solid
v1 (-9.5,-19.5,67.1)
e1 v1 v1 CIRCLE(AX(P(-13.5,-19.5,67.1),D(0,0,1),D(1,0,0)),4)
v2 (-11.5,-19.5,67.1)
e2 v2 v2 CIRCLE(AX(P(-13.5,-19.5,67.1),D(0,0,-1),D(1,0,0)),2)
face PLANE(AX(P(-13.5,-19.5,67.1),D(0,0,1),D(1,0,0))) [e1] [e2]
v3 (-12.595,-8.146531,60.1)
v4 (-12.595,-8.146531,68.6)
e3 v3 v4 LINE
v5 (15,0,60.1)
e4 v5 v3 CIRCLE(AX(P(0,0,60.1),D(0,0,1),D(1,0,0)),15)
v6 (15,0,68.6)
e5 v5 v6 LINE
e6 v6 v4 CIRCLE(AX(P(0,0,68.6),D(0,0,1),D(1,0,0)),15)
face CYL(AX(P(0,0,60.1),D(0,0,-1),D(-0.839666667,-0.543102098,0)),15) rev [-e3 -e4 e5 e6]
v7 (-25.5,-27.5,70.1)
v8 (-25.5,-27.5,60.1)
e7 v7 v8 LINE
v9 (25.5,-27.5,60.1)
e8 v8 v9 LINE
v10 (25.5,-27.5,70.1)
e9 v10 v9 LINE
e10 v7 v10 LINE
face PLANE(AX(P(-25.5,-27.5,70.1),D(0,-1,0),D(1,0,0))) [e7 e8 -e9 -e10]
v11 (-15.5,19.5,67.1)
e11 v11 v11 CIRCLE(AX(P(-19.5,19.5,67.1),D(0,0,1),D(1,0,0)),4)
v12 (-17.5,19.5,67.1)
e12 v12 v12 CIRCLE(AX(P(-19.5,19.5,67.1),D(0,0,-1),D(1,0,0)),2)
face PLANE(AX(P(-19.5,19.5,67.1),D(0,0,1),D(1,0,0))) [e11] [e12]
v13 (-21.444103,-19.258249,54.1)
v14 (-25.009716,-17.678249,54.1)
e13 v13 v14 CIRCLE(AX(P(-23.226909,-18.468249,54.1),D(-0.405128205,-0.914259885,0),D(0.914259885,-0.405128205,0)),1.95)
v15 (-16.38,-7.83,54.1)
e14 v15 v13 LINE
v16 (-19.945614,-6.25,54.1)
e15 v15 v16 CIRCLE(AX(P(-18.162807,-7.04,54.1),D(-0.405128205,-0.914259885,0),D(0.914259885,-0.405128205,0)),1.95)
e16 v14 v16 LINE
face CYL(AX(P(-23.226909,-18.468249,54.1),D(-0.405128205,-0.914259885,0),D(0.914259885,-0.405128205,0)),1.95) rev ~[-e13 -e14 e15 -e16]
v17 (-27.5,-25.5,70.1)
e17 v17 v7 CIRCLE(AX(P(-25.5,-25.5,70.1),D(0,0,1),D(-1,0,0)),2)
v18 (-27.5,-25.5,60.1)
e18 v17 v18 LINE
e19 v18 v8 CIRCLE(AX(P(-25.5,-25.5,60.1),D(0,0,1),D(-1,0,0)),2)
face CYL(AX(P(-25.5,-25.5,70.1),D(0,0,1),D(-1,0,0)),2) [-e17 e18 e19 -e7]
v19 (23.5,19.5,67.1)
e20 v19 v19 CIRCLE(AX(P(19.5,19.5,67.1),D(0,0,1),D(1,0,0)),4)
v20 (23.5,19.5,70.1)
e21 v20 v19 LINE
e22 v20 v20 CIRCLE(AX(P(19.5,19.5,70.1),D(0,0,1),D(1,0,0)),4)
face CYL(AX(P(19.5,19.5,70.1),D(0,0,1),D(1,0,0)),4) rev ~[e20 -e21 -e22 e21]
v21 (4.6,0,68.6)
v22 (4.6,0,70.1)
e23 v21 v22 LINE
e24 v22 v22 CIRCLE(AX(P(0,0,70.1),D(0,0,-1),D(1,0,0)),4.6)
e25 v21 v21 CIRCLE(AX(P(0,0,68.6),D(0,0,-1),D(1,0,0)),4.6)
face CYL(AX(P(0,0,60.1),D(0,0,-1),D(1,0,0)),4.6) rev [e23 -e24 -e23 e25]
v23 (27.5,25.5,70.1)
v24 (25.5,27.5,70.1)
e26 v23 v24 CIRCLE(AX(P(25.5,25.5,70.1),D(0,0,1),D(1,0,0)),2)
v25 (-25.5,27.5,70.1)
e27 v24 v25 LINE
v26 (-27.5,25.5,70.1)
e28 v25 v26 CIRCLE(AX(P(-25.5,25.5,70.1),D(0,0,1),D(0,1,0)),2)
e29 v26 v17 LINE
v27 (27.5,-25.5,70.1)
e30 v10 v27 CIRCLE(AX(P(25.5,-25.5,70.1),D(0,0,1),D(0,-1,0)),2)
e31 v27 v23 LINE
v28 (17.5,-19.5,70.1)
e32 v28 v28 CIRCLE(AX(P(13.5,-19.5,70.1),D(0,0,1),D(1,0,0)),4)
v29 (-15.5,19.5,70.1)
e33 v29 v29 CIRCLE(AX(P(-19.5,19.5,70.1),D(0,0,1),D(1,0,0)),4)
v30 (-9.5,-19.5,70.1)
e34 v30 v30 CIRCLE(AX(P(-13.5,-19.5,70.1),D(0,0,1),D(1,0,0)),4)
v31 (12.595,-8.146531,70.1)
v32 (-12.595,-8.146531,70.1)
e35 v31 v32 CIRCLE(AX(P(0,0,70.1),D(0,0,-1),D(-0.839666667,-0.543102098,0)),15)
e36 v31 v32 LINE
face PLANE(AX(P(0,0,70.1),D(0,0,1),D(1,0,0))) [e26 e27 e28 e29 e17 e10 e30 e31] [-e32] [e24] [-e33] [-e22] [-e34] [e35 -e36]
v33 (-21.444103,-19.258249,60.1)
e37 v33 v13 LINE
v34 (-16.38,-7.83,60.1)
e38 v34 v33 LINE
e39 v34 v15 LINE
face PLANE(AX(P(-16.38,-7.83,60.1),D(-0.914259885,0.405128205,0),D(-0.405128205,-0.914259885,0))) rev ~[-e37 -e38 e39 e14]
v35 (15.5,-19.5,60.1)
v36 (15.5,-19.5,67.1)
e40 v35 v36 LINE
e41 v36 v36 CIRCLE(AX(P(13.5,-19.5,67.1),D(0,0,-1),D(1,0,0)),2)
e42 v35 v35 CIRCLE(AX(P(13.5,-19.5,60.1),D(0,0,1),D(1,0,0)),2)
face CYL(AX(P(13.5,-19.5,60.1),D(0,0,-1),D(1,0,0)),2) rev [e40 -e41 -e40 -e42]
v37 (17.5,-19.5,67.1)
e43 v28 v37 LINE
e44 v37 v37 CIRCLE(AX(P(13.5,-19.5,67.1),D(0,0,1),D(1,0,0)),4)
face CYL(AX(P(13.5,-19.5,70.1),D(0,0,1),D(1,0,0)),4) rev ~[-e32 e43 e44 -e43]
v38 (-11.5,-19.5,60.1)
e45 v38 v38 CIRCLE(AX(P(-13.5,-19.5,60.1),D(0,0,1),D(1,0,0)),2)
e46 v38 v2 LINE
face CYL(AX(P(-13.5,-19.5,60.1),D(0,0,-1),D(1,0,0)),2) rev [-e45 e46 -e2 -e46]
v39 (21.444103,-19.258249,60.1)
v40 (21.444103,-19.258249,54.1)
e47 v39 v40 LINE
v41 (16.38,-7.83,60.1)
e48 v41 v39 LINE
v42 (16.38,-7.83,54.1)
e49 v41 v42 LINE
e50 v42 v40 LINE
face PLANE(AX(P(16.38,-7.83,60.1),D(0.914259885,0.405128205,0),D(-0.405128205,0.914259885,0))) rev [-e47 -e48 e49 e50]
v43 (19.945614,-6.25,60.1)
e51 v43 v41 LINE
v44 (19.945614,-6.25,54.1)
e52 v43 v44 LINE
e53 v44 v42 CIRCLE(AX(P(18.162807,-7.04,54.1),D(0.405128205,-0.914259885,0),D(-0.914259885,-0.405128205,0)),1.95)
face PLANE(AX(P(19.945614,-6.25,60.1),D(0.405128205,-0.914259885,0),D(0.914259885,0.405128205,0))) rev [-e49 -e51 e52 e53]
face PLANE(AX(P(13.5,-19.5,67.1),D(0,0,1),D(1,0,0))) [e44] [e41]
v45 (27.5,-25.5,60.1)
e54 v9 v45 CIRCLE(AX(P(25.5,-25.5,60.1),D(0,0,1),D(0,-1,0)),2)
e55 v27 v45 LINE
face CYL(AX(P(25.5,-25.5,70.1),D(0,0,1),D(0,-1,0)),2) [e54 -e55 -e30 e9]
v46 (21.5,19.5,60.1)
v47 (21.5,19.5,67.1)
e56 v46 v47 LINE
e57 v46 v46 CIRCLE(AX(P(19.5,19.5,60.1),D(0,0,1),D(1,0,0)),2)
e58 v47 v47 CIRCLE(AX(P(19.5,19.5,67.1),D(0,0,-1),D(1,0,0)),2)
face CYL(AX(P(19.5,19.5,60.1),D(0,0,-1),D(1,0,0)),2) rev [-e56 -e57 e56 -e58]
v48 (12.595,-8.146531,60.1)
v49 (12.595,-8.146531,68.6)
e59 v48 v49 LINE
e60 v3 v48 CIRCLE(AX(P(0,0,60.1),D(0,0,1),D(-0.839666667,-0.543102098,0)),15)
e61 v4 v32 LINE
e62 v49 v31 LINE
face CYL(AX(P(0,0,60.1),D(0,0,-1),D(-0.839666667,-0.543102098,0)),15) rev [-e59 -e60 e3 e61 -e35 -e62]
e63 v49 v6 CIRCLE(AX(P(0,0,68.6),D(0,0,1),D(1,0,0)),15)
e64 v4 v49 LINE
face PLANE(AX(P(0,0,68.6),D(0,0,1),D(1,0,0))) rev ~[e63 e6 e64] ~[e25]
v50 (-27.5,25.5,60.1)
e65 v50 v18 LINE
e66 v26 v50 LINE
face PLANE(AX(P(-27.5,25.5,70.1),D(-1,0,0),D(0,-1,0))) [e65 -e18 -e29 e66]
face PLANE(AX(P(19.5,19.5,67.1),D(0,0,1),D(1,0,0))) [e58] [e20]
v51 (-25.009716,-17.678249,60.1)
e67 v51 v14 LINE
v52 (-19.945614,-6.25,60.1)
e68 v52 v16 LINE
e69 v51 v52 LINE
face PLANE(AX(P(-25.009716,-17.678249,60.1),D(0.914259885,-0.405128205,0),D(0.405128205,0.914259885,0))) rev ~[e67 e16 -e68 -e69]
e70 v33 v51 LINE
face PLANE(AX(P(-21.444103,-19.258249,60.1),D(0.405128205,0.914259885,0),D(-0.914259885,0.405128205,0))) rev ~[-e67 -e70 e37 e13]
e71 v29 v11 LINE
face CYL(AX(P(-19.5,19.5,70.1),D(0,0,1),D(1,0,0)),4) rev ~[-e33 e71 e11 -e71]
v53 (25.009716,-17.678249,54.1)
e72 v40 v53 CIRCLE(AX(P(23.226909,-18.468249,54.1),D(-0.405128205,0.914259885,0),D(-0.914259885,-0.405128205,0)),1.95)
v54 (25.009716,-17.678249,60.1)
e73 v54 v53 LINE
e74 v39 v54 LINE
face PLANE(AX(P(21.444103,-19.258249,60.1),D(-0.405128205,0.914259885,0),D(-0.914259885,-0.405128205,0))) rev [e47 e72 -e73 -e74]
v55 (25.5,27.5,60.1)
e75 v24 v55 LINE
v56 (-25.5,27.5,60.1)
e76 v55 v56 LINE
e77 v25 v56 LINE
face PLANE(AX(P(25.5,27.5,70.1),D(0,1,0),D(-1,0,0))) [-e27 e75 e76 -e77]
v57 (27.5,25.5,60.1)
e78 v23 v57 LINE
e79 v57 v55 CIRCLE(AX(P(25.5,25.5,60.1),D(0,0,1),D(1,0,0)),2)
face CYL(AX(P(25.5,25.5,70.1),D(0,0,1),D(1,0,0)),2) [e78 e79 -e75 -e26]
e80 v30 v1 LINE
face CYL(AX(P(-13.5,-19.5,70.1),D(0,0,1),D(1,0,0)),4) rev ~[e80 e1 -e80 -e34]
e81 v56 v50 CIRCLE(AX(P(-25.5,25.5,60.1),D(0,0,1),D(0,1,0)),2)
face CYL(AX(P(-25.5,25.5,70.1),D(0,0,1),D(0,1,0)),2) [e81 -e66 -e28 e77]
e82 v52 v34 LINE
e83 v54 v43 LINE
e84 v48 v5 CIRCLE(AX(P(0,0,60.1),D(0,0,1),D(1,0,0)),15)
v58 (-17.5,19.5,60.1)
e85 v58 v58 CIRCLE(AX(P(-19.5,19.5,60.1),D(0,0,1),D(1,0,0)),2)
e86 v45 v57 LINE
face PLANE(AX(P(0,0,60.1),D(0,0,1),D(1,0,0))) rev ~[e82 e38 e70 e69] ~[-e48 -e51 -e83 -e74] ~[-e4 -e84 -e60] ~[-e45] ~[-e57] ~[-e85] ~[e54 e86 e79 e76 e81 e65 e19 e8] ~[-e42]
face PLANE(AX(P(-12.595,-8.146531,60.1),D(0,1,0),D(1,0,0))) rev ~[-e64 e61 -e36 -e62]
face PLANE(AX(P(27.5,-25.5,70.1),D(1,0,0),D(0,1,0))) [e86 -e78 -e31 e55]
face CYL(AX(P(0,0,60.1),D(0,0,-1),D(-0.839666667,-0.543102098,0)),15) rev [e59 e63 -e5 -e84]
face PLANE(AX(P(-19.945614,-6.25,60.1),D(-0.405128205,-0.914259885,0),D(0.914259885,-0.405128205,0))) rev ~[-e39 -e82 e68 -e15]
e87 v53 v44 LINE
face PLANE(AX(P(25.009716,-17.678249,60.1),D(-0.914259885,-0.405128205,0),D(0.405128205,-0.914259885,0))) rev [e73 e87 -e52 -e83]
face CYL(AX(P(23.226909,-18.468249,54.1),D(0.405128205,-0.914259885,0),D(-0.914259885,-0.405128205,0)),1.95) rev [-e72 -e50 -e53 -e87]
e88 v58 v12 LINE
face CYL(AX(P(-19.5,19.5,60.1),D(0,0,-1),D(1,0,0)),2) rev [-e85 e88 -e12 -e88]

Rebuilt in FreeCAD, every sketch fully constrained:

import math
import FreeCAD as App
import Part
import Sketcher
from FreeCAD import Vector

doc = App.newDocument("Part")
body = doc.addObject("PartDesign::Body", "Body")

# Sketch on XY plane
sketch1 = body.newObject("Sketcher::SketchObject", "Sketch")
sketch1.AttachmentSupport = (doc.getObject("XY_Plane"), [""])
sketch1.MapMode = "FlatFace"
sketch1.AttachmentOffset = App.Placement(Vector(0, 0, 70.1), App.Rotation())
sketch1.addGeometry(Part.LineSegment(Vector(-27.5, 25.5, 0), Vector(-27.5, -25.5, 0)), False)
sketch1.addGeometry(Part.ArcOfCircle(Part.Circle(Vector(-25.5, -25.5, 0), Vector(0, 0, 1), 2), math.radians(180), math.radians(270)), False)
sketch1.addGeometry(Part.LineSegment(Vector(-25.5, -27.5, 0), Vector(25.5, -27.5, 0)), False)
sketch1.addGeometry(Part.ArcOfCircle(Part.Circle(Vector(25.5, -25.5, 0), Vector(0, 0, 1), 2), math.radians(-90), math.radians(0)), False)
sketch1.addGeometry(Part.LineSegment(Vector(27.5, -25.5, 0), Vector(27.5, 25.5, 0)), False)
sketch1.addGeometry(Part.ArcOfCircle(Part.Circle(Vector(25.5, 25.5, 0), Vector(0, 0, 1), 2), math.radians(0), math.radians(90)), False)
sketch1.addGeometry(Part.LineSegment(Vector(25.5, 27.5, 0), Vector(-25.5, 27.5, 0)), False)
sketch1.addGeometry(Part.ArcOfCircle(Part.Circle(Vector(-25.5, 25.5, 0), Vector(0, 0, 1), 2), math.radians(90), math.radians(180)), False)
sketch1.addConstraint(Sketcher.Constraint("Tangent", 0, 2, 1, 1))
sketch1.addConstraint(Sketcher.Constraint("Tangent", 1, 2, 2, 1))
sketch1.addConstraint(Sketcher.Constraint("Tangent", 2, 2, 3, 1))
sketch1.addConstraint(Sketcher.Constraint("Tangent", 3, 2, 4, 1))
sketch1.addConstraint(Sketcher.Constraint("Tangent", 4, 2, 5, 1))
sketch1.addConstraint(Sketcher.Constraint("Tangent", 5, 2, 6, 1))
sketch1.addConstraint(Sketcher.Constraint("Tangent", 6, 2, 7, 1))
sketch1.addConstraint(Sketcher.Constraint("Tangent", 7, 2, 0, 1))
sketch1.addConstraint(Sketcher.Constraint("Vertical", 0))
sketch1.addConstraint(Sketcher.Constraint("Horizontal", 2))
sketch1.addConstraint(Sketcher.Constraint("Vertical", 4))
sketch1.addConstraint(Sketcher.Constraint("Horizontal", 6))
sketch1.addConstraint(Sketcher.Constraint("Equal", 1, 3))
sketch1.addConstraint(Sketcher.Constraint("Equal", 3, 5))
sketch1.addConstraint(Sketcher.Constraint("Equal", 5, 7))
sketch1.addConstraint(Sketcher.Constraint("Symmetric", 1, 3, 5, 3, -1, 1))
sketch1.addConstraint(Sketcher.Constraint("Equal", 6, 0))
sketch1.addConstraint(Sketcher.Constraint("Radius", 1, 2.0))
sketch1.addConstraint(Sketcher.Constraint("DistanceX", 2, 1, 2, 2, 51.0))
pad1 = body.newObject("PartDesign::Pad", "Pad")
pad1.Profile = sketch1
pad1.Length = 10
pad1.Reversed = True

# Sketch on XY plane
sketch2 = body.newObject("Sketcher::SketchObject", "Sketch001")
sketch2.AttachmentSupport = (doc.getObject("XY_Plane"), [""])
sketch2.MapMode = "FlatFace"
sketch2.AttachmentOffset = App.Placement(Vector(0, 0, 60.1), App.Rotation())
sketch2.addGeometry(Part.LineSegment(Vector(-16.4, -7.8, 0), Vector(-19.9, -6.2, 0)), False)
sketch2.addGeometry(Part.LineSegment(Vector(-19.9, -6.2, 0), Vector(-25, -17.7, 0)), False)
sketch2.addGeometry(Part.LineSegment(Vector(-25, -17.7, 0), Vector(-21.4, -19.3, 0)), False)
sketch2.addGeometry(Part.LineSegment(Vector(-21.4, -19.3, 0), Vector(-16.4, -7.8, 0)), False)
sketch2.addConstraint(Sketcher.Constraint("Coincident", 0, 2, 1, 1))
sketch2.addConstraint(Sketcher.Constraint("Coincident", 1, 2, 2, 1))
sketch2.addConstraint(Sketcher.Constraint("Coincident", 2, 2, 3, 1))
sketch2.addConstraint(Sketcher.Constraint("Coincident", 3, 2, 0, 1))
sketch2.addConstraint(Sketcher.Constraint("Perpendicular", 0, 1))
sketch2.addConstraint(Sketcher.Constraint("Perpendicular", 1, 2))
sketch2.addConstraint(Sketcher.Constraint("Perpendicular", 2, 3))
sketch2.addConstraint(Sketcher.Constraint("Distance", 0, 3.9))
sketch2.addConstraint(Sketcher.Constraint("Distance", 1, 12.5))
sketch2.addConstraint(Sketcher.Constraint("DistanceY", 0, 2, -1, 1, 6.25))
sketch2.addConstraint(Sketcher.Constraint("DistanceX", 3, 2, -1, 1, 16.38))
sketch2.addConstraint(Sketcher.Constraint("DistanceY", 3, 2, -1, 1, 7.83))
pad2 = body.newObject("PartDesign::Pad", "Pad001")
pad2.Profile = sketch2
pad2.Length = 6
pad2.Reversed = True

# Sketch on an angled plane
sketch3 = body.newObject("Sketcher::SketchObject", "Sketch002")
sketch3.Placement = App.Placement(Vector(-10.652706, -24.040148, 0), App.Rotation(Vector(0.914259885, -0.405128205, 0), Vector(0, 0, 1), Vector(-0.405128205, -0.914259885, 0), "ZXY"))
sketch3.addGeometry(Part.ArcOfCircle(Part.Circle(Vector(-13.8, 54.1, 0), Vector(0, 0, 1), 1.9), math.radians(0), math.radians(180)), False)
sketch3.addGeometry(Part.LineSegment(Vector(-15.7, 54.1, 0), Vector(-11.8, 54.1, 0)), False)
sketch3.addConstraint(Sketcher.Constraint("Coincident", 0, 1, 1, 2))
sketch3.addConstraint(Sketcher.Constraint("Coincident", 1, 1, 0, 2))
sketch3.addConstraint(Sketcher.Constraint("Horizontal", 1))
sketch3.addConstraint(Sketcher.Constraint("Radius", 0, 1.95))
sketch3.addConstraint(Sketcher.Constraint("DistanceY", -1, 1, 0, 3, 54.1))
sketch3.addConstraint(Sketcher.Constraint("DistanceY", -1, 1, 0, 1, 54.1))
sketch3.addConstraint(Sketcher.Constraint("DistanceX", 0, 3, -1, 1, 13.753423))
pocket1 = body.newObject("PartDesign::Pocket", "Pocket")
pocket1.Profile = sketch3
pocket1.Type = "ThroughAll"
doc.recompute()

mirrored = body.newObject("PartDesign::Mirrored", "Mirrored")
mirrored.Originals = [pad2, pocket1]
mirrored.MirrorPlane = (doc.getObject("YZ_Plane"), [""])
body.Tip = mirrored

# Sketch on XY plane
sketch4 = body.newObject("Sketcher::SketchObject", "Sketch003")
sketch4.AttachmentSupport = (doc.getObject("XY_Plane"), [""])
sketch4.MapMode = "FlatFace"
sketch4.AttachmentOffset = App.Placement(Vector(0, 0, 60.1), App.Rotation())
sketch4.addGeometry(Part.Circle(Vector(19.5, 19.5, 0), Vector(0, 0, 1), 2), False)
sketch4.addGeometry(Part.Circle(Vector(-19.5, 19.5, 0), Vector(0, 0, 1), 2), False)
sketch4.addGeometry(Part.Circle(Vector(-13.5, -19.5, 0), Vector(0, 0, 1), 2), False)
sketch4.addGeometry(Part.Circle(Vector(13.5, -19.5, 0), Vector(0, 0, 1), 2), False)
sketch4.addGeometry(Part.Circle(Vector(0, 0, 0), Vector(0, 0, 1), 4.6), False)
sketch4.addGeometry(Part.ArcOfCircle(Part.Circle(Vector(0, 0, 0), Vector(0, 0, 1), 15), math.radians(-147), math.radians(-33)), False)
sketch4.addGeometry(Part.LineSegment(Vector(12.6, -8.1, 0), Vector(-12.6, -8.1, 0)), False)
sketch4.addConstraint(Sketcher.Constraint("Coincident", 5, 1, 6, 2))
sketch4.addConstraint(Sketcher.Constraint("Coincident", 6, 1, 5, 2))
sketch4.addConstraint(Sketcher.Constraint("Horizontal", 6))
sketch4.addConstraint(Sketcher.Constraint("Coincident", 4, 3, -1, 1))
sketch4.addConstraint(Sketcher.Constraint("Coincident", 5, 3, -1, 1))
sketch4.addConstraint(Sketcher.Constraint("Equal", 0, 1))
sketch4.addConstraint(Sketcher.Constraint("Equal", 1, 2))
sketch4.addConstraint(Sketcher.Constraint("Equal", 2, 3))
sketch4.addConstraint(Sketcher.Constraint("Symmetric", 0, 3, 1, 3, -2))
sketch4.addConstraint(Sketcher.Constraint("Symmetric", 2, 3, 3, 3, -2))
sketch4.addConstraint(Sketcher.Constraint("Diameter", 0, 4.0))
sketch4.addConstraint(Sketcher.Constraint("Radius", 5, 15.0))
sketch4.addConstraint(Sketcher.Constraint("Diameter", 4, 9.2))
sketch4.addConstraint(Sketcher.Constraint("DistanceX", 1, 3, 0, 3, 39.0))
sketch4.addConstraint(Sketcher.Constraint("DistanceX", 1, 3, 2, 3, 6.0))
sketch4.addConstraint(Sketcher.Constraint("DistanceY", 2, 3, 1, 3, 39.0))
sketch4.addConstraint(Sketcher.Constraint("DistanceX", 6, 2, 6, 1, 25.19))
sketch4.addConstraint(Sketcher.Constraint("DistanceY", -1, 1, 0, 3, 19.5))
pocket2 = body.newObject("PartDesign::Pocket", "Pocket001")
pocket2.Profile = sketch4
pocket2.Type = "ThroughAll"
pocket2.Reversed = True

# Sketch on XY plane
sketch5 = body.newObject("Sketcher::SketchObject", "Sketch004")
sketch5.AttachmentSupport = (doc.getObject("XY_Plane"), [""])
sketch5.MapMode = "FlatFace"
sketch5.AttachmentOffset = App.Placement(Vector(0, 0, 70.1), App.Rotation())
sketch5.addGeometry(Part.Circle(Vector(13.5, -19.5, 0), Vector(0, 0, 1), 4), False)
sketch5.addGeometry(Part.Circle(Vector(-13.5, -19.5, 0), Vector(0, 0, 1), 4), False)
sketch5.addGeometry(Part.Circle(Vector(-19.5, 19.5, 0), Vector(0, 0, 1), 4), False)
sketch5.addGeometry(Part.Circle(Vector(19.5, 19.5, 0), Vector(0, 0, 1), 4), False)
sketch5.addConstraint(Sketcher.Constraint("Equal", 0, 1))
sketch5.addConstraint(Sketcher.Constraint("Equal", 1, 2))
sketch5.addConstraint(Sketcher.Constraint("Equal", 2, 3))
sketch5.addConstraint(Sketcher.Constraint("Symmetric", 0, 3, 1, 3, -2))
sketch5.addConstraint(Sketcher.Constraint("Symmetric", 2, 3, 3, 3, -2))
sketch5.addConstraint(Sketcher.Constraint("Diameter", 0, 8.0))
sketch5.addConstraint(Sketcher.Constraint("DistanceX", 1, 3, 0, 3, 27.0))
sketch5.addConstraint(Sketcher.Constraint("DistanceX", 2, 3, 1, 3, 6.0))
sketch5.addConstraint(Sketcher.Constraint("DistanceY", 1, 3, 2, 3, 39.0))
sketch5.addConstraint(Sketcher.Constraint("DistanceY", 0, 3, -1, 1, 19.5))
pocket3 = body.newObject("PartDesign::Pocket", "Pocket002")
pocket3.Profile = sketch5
pocket3.Length = 3

# Sketch on XY plane
sketch6 = body.newObject("Sketcher::SketchObject", "Sketch005")
sketch6.AttachmentSupport = (doc.getObject("XY_Plane"), [""])
sketch6.MapMode = "FlatFace"
sketch6.AttachmentOffset = App.Placement(Vector(0, 0, 60.1), App.Rotation())
sketch6.addGeometry(Part.Circle(Vector(0, 0, 0), Vector(0, 0, 1), 15), False)
sketch6.addConstraint(Sketcher.Constraint("Coincident", 0, 3, -1, 1))
sketch6.addConstraint(Sketcher.Constraint("Diameter", 0, 30.0))
pocket4 = body.newObject("PartDesign::Pocket", "Pocket003")
pocket4.Profile = sketch6
pocket4.Length = 8.5
pocket4.Reversed = True

doc.recompute()
